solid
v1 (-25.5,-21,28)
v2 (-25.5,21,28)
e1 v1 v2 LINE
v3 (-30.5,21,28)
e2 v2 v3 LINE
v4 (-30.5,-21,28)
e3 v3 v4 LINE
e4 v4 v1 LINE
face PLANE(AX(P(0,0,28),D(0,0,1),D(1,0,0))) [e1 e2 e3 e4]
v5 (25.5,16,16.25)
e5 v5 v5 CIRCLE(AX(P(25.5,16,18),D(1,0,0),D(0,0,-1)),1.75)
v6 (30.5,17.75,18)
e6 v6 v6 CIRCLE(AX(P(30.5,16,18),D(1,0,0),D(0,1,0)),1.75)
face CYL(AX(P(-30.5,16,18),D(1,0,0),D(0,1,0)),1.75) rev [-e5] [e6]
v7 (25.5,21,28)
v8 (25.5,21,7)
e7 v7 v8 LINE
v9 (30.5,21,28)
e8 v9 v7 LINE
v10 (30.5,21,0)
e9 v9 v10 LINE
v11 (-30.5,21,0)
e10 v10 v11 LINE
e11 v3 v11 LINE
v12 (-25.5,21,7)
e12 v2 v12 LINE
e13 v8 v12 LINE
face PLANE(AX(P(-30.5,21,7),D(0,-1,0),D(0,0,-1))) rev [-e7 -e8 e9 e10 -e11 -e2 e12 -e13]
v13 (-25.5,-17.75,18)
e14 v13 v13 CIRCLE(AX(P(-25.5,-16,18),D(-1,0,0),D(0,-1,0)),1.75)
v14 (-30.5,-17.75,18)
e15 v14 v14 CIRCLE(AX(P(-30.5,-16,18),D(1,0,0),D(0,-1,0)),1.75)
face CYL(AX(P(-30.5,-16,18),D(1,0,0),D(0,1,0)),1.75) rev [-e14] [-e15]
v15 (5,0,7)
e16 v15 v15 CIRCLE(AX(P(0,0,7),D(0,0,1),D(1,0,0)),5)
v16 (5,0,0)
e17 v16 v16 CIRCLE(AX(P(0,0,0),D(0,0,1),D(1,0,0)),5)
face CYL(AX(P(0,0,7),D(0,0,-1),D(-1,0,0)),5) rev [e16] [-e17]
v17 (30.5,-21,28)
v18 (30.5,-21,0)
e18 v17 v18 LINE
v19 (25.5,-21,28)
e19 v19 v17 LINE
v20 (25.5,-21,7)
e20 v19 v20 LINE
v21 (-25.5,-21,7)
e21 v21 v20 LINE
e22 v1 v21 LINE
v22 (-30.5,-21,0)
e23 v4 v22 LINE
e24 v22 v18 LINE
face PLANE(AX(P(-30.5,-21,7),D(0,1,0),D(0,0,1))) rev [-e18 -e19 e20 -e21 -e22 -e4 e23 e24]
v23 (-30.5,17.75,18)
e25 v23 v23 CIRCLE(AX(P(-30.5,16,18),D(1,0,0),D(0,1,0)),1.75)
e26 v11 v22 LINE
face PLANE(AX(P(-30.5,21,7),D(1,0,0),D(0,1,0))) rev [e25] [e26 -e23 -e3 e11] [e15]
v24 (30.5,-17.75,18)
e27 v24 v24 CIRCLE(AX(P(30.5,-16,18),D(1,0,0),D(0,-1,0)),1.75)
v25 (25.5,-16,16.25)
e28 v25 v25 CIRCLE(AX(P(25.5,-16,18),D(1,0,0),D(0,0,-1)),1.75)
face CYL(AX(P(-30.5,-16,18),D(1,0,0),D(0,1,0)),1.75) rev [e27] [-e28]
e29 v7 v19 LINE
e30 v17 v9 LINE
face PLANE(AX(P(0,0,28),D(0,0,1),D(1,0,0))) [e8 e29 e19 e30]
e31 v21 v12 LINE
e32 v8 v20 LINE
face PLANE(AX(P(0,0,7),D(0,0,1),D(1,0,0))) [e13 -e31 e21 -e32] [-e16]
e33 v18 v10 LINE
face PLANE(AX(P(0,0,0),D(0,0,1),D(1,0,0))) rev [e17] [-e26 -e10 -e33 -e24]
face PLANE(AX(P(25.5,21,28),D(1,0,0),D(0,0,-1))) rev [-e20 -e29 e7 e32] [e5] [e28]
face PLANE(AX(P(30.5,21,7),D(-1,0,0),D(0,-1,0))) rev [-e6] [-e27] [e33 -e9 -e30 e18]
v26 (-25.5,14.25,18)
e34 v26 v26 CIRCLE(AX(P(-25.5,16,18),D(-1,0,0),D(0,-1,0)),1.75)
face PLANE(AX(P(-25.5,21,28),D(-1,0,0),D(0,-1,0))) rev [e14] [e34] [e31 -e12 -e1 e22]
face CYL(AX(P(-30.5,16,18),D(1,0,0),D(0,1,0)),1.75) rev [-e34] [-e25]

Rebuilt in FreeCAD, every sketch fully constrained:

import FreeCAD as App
import Part
import Sketcher

V = App.Vector
Q = App.Units.Quantity


def add_polygon(sketch, points):
    """Adds a closed chain of lines whose ends are joined by coincident constraints."""
    first, n = sketch.GeometryCount, len(points)
    for a, b in zip(points, points[1:] + points[:1]):
        sketch.addGeometry(Part.LineSegment(App.Vector(*a, 0), App.Vector(*b, 0)), False)
    for i in range(n):
        sketch.addConstraint(Sketcher.Constraint("Coincident", first + i, 2, first + (i + 1) % n, 1))

doc = App.newDocument("Part")
body = doc.addObject("PartDesign::Body", "Body")

sketch1 = doc.addObject("Sketcher::SketchObject", "Sketch")
body.addObject(sketch1)
sketch1.AttachmentSupport = (doc.XY_Plane, [""])
sketch1.MapMode = "FlatFace"
add_polygon(sketch1, [(-30, 21), (-30, -21), (30, -21), (30, 21)])
sketch1.addGeometry(Part.Circle(V(0, 0, 0), V(0, 0, 1), 5), False)
sketch1.addConstraint([
    Sketcher.Constraint("Vertical", 0),
    Sketcher.Constraint("Horizontal", 1),
    Sketcher.Constraint("Vertical", 2),
    Sketcher.Constraint("Horizontal", 3),
    Sketcher.Constraint("Coincident", 4, 3, -1, 1),
    Sketcher.Constraint("Symmetric", 0, 2, 2, 2, -1, 1),
    Sketcher.Constraint("Diameter", 4, Q("10 mm")),
    Sketcher.Constraint("DistanceX", 1, 1, 1, 2, Q("61 mm")),
    Sketcher.Constraint("DistanceY", 0, 2, 0, 1, Q("42 mm")),
])
pad1 = doc.addObject("PartDesign::Pad", "Pad")
body.addObject(pad1)
pad1.Profile = sketch1
pad1.Length = 7

sketch2 = doc.addObject("Sketcher::SketchObject", "Sketch001")
body.addObject(sketch2)
sketch2.AttachmentSupport = (doc.XY_Plane, [""])
sketch2.MapMode = "FlatFace"
sketch2.AttachmentOffset = App.Placement(V(0, 0, 7), App.Rotation())
add_polygon(sketch2, [(-30, 21), (-30, -21), (-26, -21), (-26, 21)])
add_polygon(sketch2, [(26, 21), (26, -21), (30, -21), (30, 21)])
sketch2.addConstraint([
    Sketcher.Constraint("Vertical", 0),
    Sketcher.Constraint("Horizontal", 1),
    Sketcher.Constraint("Vertical", 2),
    Sketcher.Constraint("Horizontal", 3),
    Sketcher.Constraint("Vertical", 4),
    Sketcher.Constraint("Horizontal", 5),
    Sketcher.Constraint("Vertical", 6),
    Sketcher.Constraint("Horizontal", 7),
    Sketcher.Constraint("Symmetric", 2, 2, 4, 2, -1, 1),
    Sketcher.Constraint("Symmetric", 0, 2, 6, 2, -1, 1),
    Sketcher.Constraint("Horizontal", 1, 2, 4, 2),
    Sketcher.Constraint("DistanceX", 1, 1, 1, 2, Q("5 mm")),
    Sketcher.Constraint("DistanceY", 0, 2, 0, 1, Q("42 mm")),
    Sketcher.Constraint("DistanceX", 1, 2, 4, 2, Q("51 mm")),
])
pad2 = doc.addObject("PartDesign::Pad", "Pad001")
body.addObject(pad2)
pad2.Profile = sketch2
pad2.Length = 21

sketch3 = doc.addObject("Sketcher::SketchObject", "Sketch002")
body.addObject(sketch3)
sketch3.AttachmentSupport = (doc.YZ_Plane, [""])
sketch3.MapMode = "FlatFace"
sketch3.AttachmentOffset = App.Placement(V(0, 0, 30.5), App.Rotation())
sketch3.addGeometry([
    Part.Circle(V(16, 18, 0), V(0, 0, 1), 1.8),
    Part.Circle(V(-16, 18, 0), V(0, 0, 1), 1.8),
], False)
sketch3.addConstraint([
    Sketcher.Constraint("Equal", 0, 1),
    Sketcher.Constraint("Symmetric", 0, 3, 1, 3, -2),
    Sketcher.Constraint("Diameter", 0, Q("3.5 mm")),
    Sketcher.Constraint("DistanceX", -1, 1, 0, 3, Q("16 mm")),
    Sketcher.Constraint("DistanceY", -1, 1, 0, 3, Q("18 mm")),
])
pocket1 = doc.addObject("PartDesign::Pocket", "Pocket")
body.addObject(pocket1)
pocket1.Profile = sketch3
pocket1.Type = "ThroughAll"

doc.recompute()
